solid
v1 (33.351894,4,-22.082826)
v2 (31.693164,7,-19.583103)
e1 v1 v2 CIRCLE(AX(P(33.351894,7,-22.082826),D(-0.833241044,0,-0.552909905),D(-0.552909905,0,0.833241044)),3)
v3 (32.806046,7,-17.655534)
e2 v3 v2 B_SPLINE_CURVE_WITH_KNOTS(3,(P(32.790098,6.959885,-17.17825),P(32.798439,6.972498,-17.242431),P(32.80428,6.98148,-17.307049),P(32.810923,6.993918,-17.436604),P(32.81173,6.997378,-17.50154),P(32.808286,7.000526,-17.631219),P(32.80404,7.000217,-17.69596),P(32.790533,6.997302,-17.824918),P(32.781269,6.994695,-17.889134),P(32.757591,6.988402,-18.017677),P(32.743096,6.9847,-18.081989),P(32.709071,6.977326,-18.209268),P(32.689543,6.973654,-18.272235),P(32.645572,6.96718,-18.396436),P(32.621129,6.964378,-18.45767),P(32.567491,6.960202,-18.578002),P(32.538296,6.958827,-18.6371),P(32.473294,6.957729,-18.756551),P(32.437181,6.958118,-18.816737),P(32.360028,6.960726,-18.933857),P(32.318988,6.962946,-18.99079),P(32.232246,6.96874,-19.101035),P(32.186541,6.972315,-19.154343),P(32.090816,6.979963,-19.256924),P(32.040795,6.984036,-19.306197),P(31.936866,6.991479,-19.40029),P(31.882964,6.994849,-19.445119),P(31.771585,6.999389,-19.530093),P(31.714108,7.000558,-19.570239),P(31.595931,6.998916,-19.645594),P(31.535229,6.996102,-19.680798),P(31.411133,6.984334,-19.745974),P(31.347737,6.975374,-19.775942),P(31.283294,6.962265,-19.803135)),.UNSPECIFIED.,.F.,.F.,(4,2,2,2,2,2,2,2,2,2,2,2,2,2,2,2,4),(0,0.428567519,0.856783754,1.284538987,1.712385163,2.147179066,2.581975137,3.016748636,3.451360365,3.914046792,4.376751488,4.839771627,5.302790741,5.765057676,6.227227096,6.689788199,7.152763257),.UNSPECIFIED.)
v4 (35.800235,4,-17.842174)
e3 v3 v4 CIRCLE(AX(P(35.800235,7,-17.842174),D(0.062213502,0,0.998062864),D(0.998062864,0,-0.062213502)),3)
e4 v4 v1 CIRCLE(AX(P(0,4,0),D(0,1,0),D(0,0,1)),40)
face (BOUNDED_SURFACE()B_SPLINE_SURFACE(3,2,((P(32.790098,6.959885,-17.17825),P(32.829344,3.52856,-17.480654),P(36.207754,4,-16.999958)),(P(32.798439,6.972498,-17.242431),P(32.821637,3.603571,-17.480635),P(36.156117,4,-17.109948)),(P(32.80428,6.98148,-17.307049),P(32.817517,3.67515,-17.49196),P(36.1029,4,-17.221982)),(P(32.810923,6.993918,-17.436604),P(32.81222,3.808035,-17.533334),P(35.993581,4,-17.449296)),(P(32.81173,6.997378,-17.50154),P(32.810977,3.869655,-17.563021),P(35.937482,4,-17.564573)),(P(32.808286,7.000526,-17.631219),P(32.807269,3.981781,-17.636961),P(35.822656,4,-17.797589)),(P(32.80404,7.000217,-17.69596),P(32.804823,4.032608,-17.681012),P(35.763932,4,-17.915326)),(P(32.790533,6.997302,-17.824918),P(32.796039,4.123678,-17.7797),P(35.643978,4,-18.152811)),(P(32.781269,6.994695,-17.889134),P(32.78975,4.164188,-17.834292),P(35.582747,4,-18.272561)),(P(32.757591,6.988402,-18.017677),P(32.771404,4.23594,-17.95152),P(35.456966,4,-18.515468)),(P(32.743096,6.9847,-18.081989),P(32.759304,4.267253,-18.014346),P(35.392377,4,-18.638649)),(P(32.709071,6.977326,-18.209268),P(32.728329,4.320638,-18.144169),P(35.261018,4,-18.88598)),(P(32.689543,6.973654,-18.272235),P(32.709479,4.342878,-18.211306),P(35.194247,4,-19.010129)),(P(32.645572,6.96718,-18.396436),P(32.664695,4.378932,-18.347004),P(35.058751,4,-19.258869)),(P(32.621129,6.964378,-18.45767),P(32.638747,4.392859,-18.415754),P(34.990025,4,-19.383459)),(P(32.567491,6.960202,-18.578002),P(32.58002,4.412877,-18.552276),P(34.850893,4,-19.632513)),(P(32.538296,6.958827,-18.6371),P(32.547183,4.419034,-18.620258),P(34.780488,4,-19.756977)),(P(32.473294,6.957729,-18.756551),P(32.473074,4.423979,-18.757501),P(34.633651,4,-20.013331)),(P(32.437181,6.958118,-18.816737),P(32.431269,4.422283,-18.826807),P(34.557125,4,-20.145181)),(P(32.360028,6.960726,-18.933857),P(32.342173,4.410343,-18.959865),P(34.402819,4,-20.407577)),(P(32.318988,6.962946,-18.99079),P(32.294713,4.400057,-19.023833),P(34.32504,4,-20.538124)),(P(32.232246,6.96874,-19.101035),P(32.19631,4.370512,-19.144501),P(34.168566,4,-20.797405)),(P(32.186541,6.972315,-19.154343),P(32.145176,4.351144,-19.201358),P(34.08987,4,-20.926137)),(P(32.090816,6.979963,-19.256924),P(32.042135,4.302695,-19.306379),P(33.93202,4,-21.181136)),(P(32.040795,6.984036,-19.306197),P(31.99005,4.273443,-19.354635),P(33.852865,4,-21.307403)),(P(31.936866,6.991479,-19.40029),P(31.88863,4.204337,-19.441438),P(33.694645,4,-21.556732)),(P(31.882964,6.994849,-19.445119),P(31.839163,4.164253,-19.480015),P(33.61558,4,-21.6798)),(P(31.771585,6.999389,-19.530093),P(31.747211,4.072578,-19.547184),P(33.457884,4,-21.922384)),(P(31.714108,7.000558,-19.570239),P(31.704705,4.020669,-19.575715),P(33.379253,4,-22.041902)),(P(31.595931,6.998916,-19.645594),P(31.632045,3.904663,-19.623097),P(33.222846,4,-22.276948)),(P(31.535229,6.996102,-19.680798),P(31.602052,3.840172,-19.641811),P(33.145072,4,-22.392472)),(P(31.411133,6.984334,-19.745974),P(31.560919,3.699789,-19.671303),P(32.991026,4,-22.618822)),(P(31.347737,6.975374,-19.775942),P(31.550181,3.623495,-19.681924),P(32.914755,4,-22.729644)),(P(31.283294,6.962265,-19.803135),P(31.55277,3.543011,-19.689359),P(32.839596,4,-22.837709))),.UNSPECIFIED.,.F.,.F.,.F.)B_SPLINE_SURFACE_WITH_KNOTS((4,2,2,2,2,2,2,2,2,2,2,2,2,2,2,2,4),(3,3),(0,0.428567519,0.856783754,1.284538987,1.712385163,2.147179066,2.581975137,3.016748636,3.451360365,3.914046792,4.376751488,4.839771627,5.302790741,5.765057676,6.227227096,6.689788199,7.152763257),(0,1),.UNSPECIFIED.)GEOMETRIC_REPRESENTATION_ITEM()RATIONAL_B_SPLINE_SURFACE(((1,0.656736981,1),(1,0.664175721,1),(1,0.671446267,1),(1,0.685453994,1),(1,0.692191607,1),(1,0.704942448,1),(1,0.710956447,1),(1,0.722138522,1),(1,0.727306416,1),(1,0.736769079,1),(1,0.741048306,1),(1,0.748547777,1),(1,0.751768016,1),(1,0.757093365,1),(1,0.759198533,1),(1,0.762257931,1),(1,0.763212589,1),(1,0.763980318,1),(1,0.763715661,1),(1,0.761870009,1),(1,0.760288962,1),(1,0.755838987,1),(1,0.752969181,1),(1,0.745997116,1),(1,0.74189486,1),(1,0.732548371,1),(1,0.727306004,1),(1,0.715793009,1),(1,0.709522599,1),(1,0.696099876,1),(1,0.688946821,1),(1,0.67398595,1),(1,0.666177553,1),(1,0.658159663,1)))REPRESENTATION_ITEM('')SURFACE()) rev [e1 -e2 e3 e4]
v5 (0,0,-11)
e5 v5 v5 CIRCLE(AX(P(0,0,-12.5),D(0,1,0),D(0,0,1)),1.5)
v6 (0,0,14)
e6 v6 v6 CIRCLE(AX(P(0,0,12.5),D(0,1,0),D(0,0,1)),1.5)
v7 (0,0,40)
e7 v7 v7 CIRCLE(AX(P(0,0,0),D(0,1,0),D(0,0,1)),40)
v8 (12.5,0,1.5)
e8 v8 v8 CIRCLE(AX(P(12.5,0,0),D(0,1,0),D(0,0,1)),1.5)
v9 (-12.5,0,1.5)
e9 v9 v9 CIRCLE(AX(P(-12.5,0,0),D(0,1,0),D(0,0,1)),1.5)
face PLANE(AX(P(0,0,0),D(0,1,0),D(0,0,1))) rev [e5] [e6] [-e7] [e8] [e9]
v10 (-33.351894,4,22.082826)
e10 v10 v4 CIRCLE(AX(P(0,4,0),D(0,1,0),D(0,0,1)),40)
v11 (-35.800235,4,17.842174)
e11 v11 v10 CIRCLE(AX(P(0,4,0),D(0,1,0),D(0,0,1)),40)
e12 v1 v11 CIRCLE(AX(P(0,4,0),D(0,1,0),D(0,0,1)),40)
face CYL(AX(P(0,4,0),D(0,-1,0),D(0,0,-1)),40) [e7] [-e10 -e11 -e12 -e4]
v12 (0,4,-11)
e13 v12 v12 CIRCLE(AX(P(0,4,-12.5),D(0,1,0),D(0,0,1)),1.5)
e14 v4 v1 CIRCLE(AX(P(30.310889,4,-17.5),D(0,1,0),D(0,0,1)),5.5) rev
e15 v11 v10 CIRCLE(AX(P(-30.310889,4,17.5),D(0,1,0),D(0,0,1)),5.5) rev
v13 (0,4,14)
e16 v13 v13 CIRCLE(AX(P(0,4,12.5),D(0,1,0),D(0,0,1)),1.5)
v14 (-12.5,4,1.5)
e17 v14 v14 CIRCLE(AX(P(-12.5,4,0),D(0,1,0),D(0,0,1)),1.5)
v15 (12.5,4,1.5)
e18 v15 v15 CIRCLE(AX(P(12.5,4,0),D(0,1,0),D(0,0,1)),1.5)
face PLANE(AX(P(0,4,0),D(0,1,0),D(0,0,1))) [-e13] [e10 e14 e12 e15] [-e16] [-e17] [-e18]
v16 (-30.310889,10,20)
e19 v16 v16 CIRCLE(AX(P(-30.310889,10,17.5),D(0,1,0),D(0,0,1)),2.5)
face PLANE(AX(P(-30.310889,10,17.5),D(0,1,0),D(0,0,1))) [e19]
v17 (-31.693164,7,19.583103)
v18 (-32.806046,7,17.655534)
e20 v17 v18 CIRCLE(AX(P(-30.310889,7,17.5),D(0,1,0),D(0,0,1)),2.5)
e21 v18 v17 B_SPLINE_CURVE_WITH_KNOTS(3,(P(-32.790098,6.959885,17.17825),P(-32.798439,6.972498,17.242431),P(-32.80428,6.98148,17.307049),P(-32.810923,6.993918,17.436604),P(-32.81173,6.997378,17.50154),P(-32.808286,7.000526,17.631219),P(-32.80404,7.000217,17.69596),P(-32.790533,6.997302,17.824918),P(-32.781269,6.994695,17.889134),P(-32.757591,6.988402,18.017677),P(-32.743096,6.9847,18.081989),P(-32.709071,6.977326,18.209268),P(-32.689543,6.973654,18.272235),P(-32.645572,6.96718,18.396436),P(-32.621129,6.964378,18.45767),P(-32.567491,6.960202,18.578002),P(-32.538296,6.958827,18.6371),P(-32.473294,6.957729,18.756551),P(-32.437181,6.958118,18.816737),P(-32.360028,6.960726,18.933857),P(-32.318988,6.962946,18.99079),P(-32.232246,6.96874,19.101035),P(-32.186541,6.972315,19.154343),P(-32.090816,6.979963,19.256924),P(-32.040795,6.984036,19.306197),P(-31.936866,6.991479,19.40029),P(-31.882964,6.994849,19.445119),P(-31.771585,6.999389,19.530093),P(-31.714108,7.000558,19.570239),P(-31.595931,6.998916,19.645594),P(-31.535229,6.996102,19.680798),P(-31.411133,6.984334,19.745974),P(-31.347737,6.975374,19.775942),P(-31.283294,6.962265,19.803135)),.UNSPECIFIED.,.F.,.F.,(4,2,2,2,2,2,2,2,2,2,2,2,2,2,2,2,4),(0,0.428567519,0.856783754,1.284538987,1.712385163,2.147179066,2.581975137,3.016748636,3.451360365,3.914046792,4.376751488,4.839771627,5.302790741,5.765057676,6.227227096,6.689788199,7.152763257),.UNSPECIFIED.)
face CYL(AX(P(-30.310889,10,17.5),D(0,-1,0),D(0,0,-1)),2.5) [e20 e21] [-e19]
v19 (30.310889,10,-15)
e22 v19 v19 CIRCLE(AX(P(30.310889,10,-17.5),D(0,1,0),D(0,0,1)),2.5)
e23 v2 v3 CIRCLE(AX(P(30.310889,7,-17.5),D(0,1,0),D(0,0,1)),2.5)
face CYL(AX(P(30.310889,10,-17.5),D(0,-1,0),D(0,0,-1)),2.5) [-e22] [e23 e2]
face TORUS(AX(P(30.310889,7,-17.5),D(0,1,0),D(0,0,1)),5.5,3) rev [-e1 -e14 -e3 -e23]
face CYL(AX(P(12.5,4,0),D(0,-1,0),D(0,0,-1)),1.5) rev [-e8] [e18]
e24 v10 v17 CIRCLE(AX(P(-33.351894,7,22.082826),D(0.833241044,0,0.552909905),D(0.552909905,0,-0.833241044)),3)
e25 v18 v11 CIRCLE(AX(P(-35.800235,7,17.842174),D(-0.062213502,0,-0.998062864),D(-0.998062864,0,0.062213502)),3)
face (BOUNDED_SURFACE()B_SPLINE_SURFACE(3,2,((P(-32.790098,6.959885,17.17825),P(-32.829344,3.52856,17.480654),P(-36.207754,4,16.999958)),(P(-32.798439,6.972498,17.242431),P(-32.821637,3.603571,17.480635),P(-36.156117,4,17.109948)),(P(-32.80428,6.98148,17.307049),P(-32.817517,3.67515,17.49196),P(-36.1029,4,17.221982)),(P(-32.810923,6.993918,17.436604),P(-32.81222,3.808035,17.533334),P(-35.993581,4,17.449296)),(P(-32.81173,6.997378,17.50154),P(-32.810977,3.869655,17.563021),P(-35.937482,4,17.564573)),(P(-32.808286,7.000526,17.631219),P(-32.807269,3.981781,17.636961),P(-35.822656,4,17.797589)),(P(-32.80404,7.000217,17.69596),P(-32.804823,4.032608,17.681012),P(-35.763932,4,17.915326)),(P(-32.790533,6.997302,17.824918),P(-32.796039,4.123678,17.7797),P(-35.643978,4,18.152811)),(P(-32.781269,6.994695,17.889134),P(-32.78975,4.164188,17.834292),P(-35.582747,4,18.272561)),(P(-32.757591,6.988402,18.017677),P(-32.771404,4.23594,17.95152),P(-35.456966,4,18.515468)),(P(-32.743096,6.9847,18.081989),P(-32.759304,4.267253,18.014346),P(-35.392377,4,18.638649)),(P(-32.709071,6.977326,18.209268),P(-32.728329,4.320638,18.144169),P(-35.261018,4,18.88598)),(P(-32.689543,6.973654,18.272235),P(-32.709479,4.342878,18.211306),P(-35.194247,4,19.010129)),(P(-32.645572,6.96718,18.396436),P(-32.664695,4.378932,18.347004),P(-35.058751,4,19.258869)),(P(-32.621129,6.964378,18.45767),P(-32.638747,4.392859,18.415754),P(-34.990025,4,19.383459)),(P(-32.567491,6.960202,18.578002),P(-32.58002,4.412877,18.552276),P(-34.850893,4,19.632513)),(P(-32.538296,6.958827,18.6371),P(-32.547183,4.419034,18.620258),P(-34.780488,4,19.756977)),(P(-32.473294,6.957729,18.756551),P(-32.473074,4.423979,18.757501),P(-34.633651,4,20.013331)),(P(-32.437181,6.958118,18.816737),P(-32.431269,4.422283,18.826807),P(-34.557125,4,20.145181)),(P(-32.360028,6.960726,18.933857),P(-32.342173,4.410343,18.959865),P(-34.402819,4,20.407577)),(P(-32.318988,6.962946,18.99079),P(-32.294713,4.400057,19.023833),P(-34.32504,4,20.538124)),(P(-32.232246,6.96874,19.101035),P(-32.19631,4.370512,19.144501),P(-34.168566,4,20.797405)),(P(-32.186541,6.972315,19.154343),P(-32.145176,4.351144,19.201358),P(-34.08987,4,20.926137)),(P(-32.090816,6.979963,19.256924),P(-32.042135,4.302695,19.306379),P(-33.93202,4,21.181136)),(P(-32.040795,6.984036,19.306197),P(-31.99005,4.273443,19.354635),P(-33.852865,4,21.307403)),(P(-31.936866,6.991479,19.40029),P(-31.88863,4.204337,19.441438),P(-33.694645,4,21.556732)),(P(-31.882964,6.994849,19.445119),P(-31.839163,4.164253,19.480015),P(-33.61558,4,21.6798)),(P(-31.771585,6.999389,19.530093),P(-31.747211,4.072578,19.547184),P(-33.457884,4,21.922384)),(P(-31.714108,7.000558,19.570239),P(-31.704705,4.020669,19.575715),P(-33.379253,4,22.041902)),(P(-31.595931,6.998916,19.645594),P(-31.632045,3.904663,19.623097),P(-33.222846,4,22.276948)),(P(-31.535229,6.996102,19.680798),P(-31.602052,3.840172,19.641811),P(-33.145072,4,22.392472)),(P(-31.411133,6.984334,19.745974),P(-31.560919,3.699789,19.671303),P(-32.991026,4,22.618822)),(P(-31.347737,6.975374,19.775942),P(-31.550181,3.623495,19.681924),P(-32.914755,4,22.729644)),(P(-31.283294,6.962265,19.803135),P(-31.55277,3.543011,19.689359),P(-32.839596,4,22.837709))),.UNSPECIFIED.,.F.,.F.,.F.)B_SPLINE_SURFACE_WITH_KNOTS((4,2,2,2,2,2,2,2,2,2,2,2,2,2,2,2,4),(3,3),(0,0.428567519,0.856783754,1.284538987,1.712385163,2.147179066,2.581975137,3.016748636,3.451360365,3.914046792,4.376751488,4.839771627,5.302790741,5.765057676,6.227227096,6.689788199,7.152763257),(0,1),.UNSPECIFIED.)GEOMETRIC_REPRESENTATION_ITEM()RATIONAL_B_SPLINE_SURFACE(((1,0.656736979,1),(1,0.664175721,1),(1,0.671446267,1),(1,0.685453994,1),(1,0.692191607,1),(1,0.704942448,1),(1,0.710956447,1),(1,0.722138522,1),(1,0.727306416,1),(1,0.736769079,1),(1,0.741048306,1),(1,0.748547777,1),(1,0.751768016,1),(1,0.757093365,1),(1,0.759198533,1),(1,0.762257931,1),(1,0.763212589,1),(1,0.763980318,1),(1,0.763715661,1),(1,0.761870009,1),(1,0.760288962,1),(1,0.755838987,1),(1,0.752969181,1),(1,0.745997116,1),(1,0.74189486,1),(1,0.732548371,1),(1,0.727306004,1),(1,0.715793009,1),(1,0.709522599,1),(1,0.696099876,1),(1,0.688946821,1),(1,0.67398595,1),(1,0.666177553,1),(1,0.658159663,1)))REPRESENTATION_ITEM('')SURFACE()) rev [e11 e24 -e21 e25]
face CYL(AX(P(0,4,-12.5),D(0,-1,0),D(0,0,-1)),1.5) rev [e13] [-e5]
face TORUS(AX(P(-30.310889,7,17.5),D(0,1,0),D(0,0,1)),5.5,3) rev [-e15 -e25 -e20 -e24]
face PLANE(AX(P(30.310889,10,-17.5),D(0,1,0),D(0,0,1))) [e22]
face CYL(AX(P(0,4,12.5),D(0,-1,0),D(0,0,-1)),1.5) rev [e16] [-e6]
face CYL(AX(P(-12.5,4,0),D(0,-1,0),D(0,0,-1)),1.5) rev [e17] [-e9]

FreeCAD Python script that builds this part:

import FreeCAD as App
import Part
import Sketcher

V = App.Vector
Q = App.Units.Quantity


def edges_at(feature, points):
    """Names of the edges that pass closest to the given points."""
    edges = feature.Shape.Edges
    near = lambda p: min(range(len(edges)), key=lambda i: edges[i].distToShape(Part.Vertex(*p))[0])
    return sorted({f"Edge{near(p) + 1}" for p in points})

doc = App.newDocument("Part")
params = doc.addObject("Spreadsheet::Sheet", "Params")
for row, (alias, value) in enumerate([
    ("sketch1_diameter", "80 mm"),
    ("sketch1_diameter2", "3 mm"),
    ("pad1_length", "4 mm"),
    ("sketch2_diameter", "5 mm"),
    ("pad2_length", "6 mm"),
    ("fillet_radius", "3 mm"),
], start=1):
    params.set(f"A{row}", alias)
    params.set(f"B{row}", "=" + value)
    params.setAlias(f"B{row}", alias)

body = doc.addObject("PartDesign::Body", "Body")

sketch1 = body.newObject("Sketcher::SketchObject", "Sketch")
sketch1.AttachmentSupport = (doc.getObject("XZ_Plane"), [""])
sketch1.MapMode = "FlatFace"
sketch1.addGeometry(Part.Circle(V(0, 0, 0), V(0, 0, 1), 40), False)
sketch1.addGeometry(Part.Circle(V(0, -12.5, 0), V(0, 0, 1), 1.5), False)
sketch1.addGeometry(Part.Circle(V(-12.5, 0, 0), V(0, 0, 1), 1.5), False)
sketch1.addGeometry(Part.Circle(V(12.5, 0, 0), V(0, 0, 1), 1.5), False)
sketch1.addGeometry(Part.Circle(V(0, 12.5, 0), V(0, 0, 1), 1.5), False)
sketch1.addConstraint(Sketcher.Constraint("Coincident", 0, 3, -1, 1))
sketch1.addConstraint(Sketcher.Constraint("Equal", 1, 2))
sketch1.addConstraint(Sketcher.Constraint("Equal", 2, 3))
sketch1.addConstraint(Sketcher.Constraint("Equal", 3, 4))
sketch1.addConstraint(Sketcher.Constraint("Symmetric", 2, 3, 3, 3, -1, 1))
sketch1.addConstraint(Sketcher.Constraint("Symmetric", 1, 3, 4, 3, -1, 1))
sketch1.addConstraint(Sketcher.Constraint("PointOnObject", 1, 3, -2))
sketch1.addConstraint(Sketcher.Constraint("PointOnObject", 2, 3, -1))
sketch1.addConstraint(Sketcher.Constraint("Diameter", 0, Q("80 mm")))
sketch1.addConstraint(Sketcher.Constraint("Diameter", 1, Q("3 mm")))
sketch1.addConstraint(Sketcher.Constraint("DistanceX", 2, 3, 3, 3, Q("25 mm")))
sketch1.addConstraint(Sketcher.Constraint("DistanceY", 1, 3, 4, 3, Q("25 mm")))
sketch1.setExpression("Constraints[8]", "Params.sketch1_diameter")
sketch1.setExpression("Constraints[9]", "Params.sketch1_diameter2")
pad1 = body.newObject("PartDesign::Pad", "Pad")
pad1.Profile = sketch1
pad1.setExpression("Length", "Params.pad1_length")
pad1.Reversed = True

sketch2 = body.newObject("Sketcher::SketchObject", "Sketch001")
sketch2.AttachmentSupport = (doc.getObject("XZ_Plane"), [""])
sketch2.MapMode = "FlatFace"
sketch2.AttachmentOffset = App.Placement(V(0, 0, -4), App.Rotation())
sketch2.addGeometry(Part.Circle(V(30.310889, -17.5, 0), V(0, 0, 1), 2.5), False)
sketch2.addGeometry(Part.Circle(V(-30.310889, 17.5, 0), V(0, 0, 1), 2.5), False)
sketch2.addConstraint(Sketcher.Constraint("Equal", 0, 1))
sketch2.addConstraint(Sketcher.Constraint("Symmetric", 0, 3, 1, 3, -1, 1))
sketch2.addConstraint(Sketcher.Constraint("Diameter", 0, Q("5 mm")))
sketch2.addConstraint(Sketcher.Constraint("DistanceY", 0, 3, 1, 3, Q("35 mm")))
sketch2.addConstraint(Sketcher.Constraint("DistanceX", -1, 1, 0, 3, Q("30.310889 mm")))
sketch2.setExpression("Constraints[2]", "Params.sketch2_diameter")
pad2 = body.newObject("PartDesign::Pad", "Pad001")
pad2.Profile = sketch2
pad2.setExpression("Length", "Params.pad2_length")
pad2.Reversed = True
doc.recompute()

fillet = body.newObject("PartDesign::Fillet", "Fillet")
fillet.Base = (pad2, edges_at(pad2, [(30.311, 4, -20), (-30.311, 4, 15)]))
fillet.setExpression("Radius", "Params.fillet_radius")

doc.recompute()
